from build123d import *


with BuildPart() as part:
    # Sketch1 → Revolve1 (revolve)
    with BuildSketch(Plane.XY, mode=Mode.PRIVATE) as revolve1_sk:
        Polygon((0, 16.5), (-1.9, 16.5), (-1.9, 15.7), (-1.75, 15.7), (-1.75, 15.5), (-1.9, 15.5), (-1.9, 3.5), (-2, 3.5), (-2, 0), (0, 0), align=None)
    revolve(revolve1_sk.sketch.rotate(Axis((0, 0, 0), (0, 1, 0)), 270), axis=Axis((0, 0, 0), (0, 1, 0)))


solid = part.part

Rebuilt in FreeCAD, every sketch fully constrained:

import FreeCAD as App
import Part
import Sketcher

V = App.Vector
Q = App.Units.Quantity

doc = App.newDocument("Part")
params = doc.addObject("Spreadsheet::Sheet", "Params")
for row, (alias, value) in enumerate([
    ("sketch1_width", "2 mm"),
    ("sketch1_height", "12 mm"),
    ("sketch1_width2", "1.9 mm"),
    ("sketch1_height2", "0.8 mm"),
    ("sketch1_height3", "0.2 mm"),
    ("revolution_angle", "360 deg"),
], start=1):
    params.set(f"A{row}", alias)
    params.set(f"B{row}", "=" + value)
    params.setAlias(f"B{row}", alias)

body = doc.addObject("PartDesign::Body", "Body")

sketch1 = body.newObject("Sketcher::SketchObject", "Sketch")
sketch1.AttachmentSupport = (doc.getObject("XY_Plane"), [""])
sketch1.MapMode = "FlatFace"
sketch1.addGeometry(Part.LineSegment(V(0, 16.5, 0), V(-1.9, 16.5, 0)), False)
sketch1.addGeometry(Part.LineSegment(V(-1.9, 16.5, 0), V(-1.9, 15.7, 0)), False)
sketch1.addGeometry(Part.LineSegment(V(-1.9, 15.7, 0), V(-1.75, 15.7, 0)), False)
sketch1.addGeometry(Part.LineSegment(V(-1.75, 15.7, 0), V(-1.75, 15.5, 0)), False)
sketch1.addGeometry(Part.LineSegment(V(-1.75, 15.5, 0), V(-1.9, 15.5, 0)), False)
sketch1.addGeometry(Part.LineSegment(V(-1.9, 15.5, 0), V(-1.9, 3.5, 0)), False)
sketch1.addGeometry(Part.LineSegment(V(-1.9, 3.5, 0), V(-2, 3.5, 0)), False)
sketch1.addGeometry(Part.LineSegment(V(-2, 3.5, 0), V(-2, 0, 0)), False)
sketch1.addGeometry(Part.LineSegment(V(-2, 0, 0), V(0, 0, 0)), False)
sketch1.addGeometry(Part.LineSegment(V(0, 0, 0), V(0, 16.5, 0)), False)
sketch1.addConstraint(Sketcher.Constraint("Coincident", 0, 2, 1, 1))
sketch1.addConstraint(Sketcher.Constraint("Coincident", 1, 2, 2, 1))
sketch1.addConstraint(Sketcher.Constraint("Coincident", 2, 2, 3, 1))
sketch1.addConstraint(Sketcher.Constraint("Coincident", 3, 2, 4, 1))
sketch1.addConstraint(Sketcher.Constraint("Coincident", 4, 2, 5, 1))
sketch1.addConstraint(Sketcher.Constraint("Coincident", 5, 2, 6, 1))
sketch1.addConstraint(Sketcher.Constraint("Coincident", 6, 2, 7, 1))
sketch1.addConstraint(Sketcher.Constraint("Coincident", 7, 2, 8, 1))
sketch1.addConstraint(Sketcher.Constraint("Coincident", 8, 2, 9, 1))
sketch1.addConstraint(Sketcher.Constraint("Coincident", 9, 2, 0, 1))
sketch1.addConstraint(Sketcher.Constraint("Horizontal", 0))
sketch1.addConstraint(Sketcher.Constraint("Vertical", 1))
sketch1.addConstraint(Sketcher.Constraint("Horizontal", 2))
sketch1.addConstraint(Sketcher.Constraint("Vertical", 3))
sketch1.addConstraint(Sketcher.Constraint("Horizontal", 4))
sketch1.addConstraint(Sketcher.Constraint("Vertical", 5))
sketch1.addConstraint(Sketcher.Constraint("Horizontal", 6))
sketch1.addConstraint(Sketcher.Constraint("Vertical", 7))
sketch1.addConstraint(Sketcher.Constraint("Horizontal", 8))
sketch1.addConstraint(Sketcher.Constraint("Vertical", 9))
sketch1.addConstraint(Sketcher.Constraint("Coincident", 8, 2, -1, 1))
sketch1.addConstraint(Sketcher.Constraint("Vertical", 1, 2, 4, 2))
sketch1.addConstraint(Sketcher.Constraint("DistanceX", 8, 1, 8, 2, Q("2 mm")))
sketch1.addConstraint(Sketcher.Constraint("DistanceY", 5, 2, 5, 1, Q("12 mm")))
sketch1.addConstraint(Sketcher.Constraint("DistanceX", 0, 2, 0, 1, Q("1.9 mm")))
sketch1.addConstraint(Sketcher.Constraint("DistanceY", 1, 2, 1, 1, Q("0.8 mm")))
sketch1.addConstraint(Sketcher.Constraint("DistanceY", 3, 2, 3, 1, Q("0.2 mm")))
sketch1.addConstraint(Sketcher.Constraint("DistanceY", 7, 2, 7, 1, Q("3.5 mm")))
sketch1.addConstraint(Sketcher.Constraint("DistanceX", 2, 1, 2, 2, Q("0.15 mm")))
sketch1.setExpression("Constraints[22]", "Params.sketch1_width")
sketch1.setExpression("Constraints[23]", "Params.sketch1_height")
sketch1.setExpression("Constraints[24]", "Params.sketch1_width2")
sketch1.setExpression("Constraints[25]", "Params.sketch1_height2")
sketch1.setExpression("Constraints[26]", "Params.sketch1_height3")
revolution = body.newObject("PartDesign::Revolution", "Revolution")
revolution.Profile = sketch1
revolution.ReferenceAxis = (sketch1, ["V_Axis"])
revolution.setExpression("Angle", "Params.revolution_angle")

doc.recompute()
